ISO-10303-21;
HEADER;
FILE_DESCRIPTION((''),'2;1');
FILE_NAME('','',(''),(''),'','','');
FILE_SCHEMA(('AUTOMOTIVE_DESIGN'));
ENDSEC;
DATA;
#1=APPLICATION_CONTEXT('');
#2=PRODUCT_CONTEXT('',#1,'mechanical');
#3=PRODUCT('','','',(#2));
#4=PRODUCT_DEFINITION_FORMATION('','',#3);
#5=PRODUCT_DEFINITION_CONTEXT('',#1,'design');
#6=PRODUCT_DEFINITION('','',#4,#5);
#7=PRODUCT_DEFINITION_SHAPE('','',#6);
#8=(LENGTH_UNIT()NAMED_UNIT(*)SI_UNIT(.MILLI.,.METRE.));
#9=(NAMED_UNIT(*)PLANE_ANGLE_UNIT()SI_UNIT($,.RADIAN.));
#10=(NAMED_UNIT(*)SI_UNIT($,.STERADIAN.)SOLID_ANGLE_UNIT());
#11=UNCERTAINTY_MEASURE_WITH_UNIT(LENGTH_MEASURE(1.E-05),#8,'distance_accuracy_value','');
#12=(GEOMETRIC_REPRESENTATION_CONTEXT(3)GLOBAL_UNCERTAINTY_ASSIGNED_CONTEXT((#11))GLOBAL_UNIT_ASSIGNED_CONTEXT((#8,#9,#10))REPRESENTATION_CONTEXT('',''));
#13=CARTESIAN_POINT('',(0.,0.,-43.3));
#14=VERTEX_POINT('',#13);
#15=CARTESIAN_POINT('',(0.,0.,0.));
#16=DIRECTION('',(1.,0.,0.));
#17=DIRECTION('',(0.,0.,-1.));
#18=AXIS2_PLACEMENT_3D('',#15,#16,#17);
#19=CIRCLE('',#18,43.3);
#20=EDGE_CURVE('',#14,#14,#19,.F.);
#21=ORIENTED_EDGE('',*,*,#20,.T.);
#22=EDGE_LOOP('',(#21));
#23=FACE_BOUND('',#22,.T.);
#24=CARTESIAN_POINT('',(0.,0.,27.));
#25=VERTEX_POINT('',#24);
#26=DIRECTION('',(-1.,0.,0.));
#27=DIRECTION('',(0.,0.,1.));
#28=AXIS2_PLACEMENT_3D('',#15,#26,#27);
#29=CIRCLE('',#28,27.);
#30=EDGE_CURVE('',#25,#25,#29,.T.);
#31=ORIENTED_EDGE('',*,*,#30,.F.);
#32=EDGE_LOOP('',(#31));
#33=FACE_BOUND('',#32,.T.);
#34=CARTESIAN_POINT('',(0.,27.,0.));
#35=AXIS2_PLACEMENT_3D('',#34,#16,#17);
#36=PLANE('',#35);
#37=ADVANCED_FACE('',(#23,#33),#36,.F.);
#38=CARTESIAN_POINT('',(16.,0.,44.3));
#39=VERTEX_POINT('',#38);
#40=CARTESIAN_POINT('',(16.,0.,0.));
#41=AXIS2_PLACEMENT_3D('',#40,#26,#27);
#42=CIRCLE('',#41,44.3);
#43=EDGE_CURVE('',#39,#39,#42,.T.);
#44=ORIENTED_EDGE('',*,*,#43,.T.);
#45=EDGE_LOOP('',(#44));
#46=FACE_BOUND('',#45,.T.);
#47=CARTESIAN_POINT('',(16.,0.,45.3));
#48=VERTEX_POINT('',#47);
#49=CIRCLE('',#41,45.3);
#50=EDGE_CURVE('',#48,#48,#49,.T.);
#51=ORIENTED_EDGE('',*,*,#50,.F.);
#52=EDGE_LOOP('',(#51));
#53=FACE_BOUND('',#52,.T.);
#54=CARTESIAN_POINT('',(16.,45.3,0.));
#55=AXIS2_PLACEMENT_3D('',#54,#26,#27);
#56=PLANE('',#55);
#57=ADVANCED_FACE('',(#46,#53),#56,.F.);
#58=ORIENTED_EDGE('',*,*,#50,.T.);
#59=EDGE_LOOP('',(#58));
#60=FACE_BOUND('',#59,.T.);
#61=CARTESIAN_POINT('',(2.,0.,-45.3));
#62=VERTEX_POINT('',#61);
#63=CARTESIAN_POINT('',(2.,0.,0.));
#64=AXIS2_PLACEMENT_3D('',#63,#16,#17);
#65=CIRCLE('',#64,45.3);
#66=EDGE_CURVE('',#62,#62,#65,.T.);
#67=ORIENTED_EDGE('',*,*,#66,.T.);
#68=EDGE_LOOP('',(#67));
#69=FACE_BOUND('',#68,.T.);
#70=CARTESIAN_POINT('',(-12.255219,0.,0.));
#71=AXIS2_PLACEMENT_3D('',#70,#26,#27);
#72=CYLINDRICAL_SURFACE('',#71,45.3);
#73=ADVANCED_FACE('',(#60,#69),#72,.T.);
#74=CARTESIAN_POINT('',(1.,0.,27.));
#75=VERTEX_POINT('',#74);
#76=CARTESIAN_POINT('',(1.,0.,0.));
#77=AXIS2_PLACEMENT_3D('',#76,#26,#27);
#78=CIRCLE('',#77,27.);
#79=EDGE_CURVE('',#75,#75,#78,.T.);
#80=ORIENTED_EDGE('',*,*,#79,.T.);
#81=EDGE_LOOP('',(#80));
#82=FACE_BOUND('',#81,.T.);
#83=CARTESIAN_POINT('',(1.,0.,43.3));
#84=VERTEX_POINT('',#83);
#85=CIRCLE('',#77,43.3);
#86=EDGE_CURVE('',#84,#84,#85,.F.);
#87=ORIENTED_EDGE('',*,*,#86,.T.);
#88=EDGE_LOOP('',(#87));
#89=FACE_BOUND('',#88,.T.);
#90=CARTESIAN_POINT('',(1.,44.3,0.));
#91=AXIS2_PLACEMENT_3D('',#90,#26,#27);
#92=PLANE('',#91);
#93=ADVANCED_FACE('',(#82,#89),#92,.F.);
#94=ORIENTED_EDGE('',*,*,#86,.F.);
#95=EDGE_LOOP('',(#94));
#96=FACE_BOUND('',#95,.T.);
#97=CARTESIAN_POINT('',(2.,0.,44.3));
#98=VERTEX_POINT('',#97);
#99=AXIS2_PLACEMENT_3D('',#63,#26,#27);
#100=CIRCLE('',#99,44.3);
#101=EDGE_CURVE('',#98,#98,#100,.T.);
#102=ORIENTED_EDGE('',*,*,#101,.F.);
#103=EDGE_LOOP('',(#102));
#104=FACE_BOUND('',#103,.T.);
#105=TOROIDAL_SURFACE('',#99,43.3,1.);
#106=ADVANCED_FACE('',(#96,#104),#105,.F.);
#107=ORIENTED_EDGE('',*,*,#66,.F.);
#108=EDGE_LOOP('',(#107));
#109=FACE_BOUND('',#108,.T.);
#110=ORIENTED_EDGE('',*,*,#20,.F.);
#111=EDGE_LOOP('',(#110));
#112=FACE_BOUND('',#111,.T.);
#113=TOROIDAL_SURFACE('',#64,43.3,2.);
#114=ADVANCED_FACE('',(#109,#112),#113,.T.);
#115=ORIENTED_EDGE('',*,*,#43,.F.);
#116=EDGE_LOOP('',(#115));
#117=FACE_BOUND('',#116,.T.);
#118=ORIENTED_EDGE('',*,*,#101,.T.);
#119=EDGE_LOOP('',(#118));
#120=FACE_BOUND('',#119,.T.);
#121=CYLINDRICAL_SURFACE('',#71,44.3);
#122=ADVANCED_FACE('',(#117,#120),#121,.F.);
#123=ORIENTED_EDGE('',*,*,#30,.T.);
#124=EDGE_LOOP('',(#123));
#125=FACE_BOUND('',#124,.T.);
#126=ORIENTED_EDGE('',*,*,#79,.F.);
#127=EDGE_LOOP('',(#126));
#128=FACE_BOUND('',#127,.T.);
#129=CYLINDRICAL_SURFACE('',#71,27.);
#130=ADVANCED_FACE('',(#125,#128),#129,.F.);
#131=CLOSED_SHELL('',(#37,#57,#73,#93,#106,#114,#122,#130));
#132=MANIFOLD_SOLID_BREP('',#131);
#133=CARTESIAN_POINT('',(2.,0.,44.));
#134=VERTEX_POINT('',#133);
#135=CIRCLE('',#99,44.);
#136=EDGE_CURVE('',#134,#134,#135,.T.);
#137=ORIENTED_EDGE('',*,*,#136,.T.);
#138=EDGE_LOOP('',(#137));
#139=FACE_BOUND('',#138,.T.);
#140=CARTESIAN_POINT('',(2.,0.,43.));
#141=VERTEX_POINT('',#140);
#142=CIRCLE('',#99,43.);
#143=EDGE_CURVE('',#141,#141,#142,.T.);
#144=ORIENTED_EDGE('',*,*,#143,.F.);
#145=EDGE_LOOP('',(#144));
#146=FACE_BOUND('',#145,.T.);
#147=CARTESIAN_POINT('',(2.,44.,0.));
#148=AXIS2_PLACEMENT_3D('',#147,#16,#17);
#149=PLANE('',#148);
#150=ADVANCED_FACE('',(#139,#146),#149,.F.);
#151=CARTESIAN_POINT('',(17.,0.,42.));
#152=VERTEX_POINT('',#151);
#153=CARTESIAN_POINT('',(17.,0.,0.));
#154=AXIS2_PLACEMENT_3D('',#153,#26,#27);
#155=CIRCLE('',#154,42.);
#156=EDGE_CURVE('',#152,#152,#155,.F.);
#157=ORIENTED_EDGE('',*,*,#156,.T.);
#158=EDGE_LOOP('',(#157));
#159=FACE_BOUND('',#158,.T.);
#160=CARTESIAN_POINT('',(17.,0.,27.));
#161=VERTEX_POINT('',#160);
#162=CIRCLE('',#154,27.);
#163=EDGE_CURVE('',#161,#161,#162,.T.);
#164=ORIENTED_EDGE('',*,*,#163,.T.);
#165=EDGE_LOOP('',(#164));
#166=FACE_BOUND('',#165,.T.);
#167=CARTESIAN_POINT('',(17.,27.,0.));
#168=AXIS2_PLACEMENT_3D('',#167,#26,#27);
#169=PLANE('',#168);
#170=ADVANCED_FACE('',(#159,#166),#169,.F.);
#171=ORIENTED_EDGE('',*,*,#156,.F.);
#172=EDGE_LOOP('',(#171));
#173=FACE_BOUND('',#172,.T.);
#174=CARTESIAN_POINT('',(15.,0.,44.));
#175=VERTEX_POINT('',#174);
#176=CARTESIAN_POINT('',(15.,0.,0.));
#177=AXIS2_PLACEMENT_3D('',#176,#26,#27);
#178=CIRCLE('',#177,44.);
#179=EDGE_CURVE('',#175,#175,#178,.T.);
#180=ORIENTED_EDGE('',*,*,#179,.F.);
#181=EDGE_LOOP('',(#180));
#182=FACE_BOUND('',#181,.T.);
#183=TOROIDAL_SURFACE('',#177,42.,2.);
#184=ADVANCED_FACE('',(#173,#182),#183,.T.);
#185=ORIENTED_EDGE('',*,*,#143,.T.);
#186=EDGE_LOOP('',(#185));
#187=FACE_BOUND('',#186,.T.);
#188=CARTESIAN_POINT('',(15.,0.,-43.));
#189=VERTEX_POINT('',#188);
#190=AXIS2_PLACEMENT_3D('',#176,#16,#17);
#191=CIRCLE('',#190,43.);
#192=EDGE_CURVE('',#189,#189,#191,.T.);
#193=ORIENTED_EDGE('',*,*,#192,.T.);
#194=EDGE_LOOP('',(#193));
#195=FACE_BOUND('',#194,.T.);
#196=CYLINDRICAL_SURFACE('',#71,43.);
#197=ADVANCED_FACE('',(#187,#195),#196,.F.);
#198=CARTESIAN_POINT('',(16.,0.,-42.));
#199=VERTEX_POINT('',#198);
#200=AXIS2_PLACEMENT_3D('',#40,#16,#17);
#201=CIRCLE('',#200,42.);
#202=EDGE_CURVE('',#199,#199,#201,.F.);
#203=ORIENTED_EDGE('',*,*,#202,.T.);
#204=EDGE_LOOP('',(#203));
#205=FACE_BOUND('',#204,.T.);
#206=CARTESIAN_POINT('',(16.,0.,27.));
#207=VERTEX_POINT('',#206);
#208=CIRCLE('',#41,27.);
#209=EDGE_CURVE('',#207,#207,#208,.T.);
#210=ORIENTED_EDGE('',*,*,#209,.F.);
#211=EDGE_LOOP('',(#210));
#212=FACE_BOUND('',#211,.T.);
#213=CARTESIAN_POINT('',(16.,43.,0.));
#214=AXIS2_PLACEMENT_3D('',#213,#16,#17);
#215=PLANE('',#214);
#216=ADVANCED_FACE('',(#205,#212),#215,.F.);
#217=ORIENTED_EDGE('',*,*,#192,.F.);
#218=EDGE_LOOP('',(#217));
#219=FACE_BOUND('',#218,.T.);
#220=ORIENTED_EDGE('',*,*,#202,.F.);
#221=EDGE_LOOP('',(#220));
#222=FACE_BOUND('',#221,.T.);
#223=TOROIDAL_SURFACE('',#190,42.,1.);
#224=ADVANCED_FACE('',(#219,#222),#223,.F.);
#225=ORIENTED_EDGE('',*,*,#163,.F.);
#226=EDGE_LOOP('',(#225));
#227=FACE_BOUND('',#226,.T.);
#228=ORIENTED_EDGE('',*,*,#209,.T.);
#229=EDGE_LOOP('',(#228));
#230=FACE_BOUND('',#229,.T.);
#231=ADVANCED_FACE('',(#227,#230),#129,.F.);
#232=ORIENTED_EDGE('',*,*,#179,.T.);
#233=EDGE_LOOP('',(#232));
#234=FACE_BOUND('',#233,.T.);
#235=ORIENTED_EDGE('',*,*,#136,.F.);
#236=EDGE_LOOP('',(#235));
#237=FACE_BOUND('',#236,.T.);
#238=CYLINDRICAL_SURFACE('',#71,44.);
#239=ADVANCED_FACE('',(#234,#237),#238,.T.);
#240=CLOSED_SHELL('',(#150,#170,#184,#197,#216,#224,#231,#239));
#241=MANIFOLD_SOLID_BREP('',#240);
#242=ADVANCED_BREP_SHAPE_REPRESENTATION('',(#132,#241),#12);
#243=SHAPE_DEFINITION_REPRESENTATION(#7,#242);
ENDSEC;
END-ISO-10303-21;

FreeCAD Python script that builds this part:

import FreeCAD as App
import Part
import Sketcher

V = App.Vector


def edges_at(feature, points):
    """Names of the edges that pass closest to the given points."""
    edges = feature.Shape.Edges
    near = lambda p: min(range(len(edges)), key=lambda i: edges[i].distToShape(Part.Vertex(*p))[0])
    return sorted({f"Edge{near(p) + 1}" for p in points})


def add_polygon(sketch, points):
    """Adds a closed chain of lines whose ends are joined by coincident constraints."""
    first, n = sketch.GeometryCount, len(points)
    for a, b in zip(points, points[1:] + points[:1]):
        sketch.addGeometry(Part.LineSegment(App.Vector(*a, 0), App.Vector(*b, 0)), False)
    for i in range(n):
        sketch.addConstraint(Sketcher.Constraint("Coincident", first + i, 2, first + (i + 1) % n, 1))

doc = App.newDocument("Part")
body = doc.addObject("PartDesign::Body", "Body")
body.AllowCompound = True

# Sketch on XY plane
sketch1 = doc.addObject("Sketcher::SketchObject", "Sketch")
body.addObject(sketch1)
sketch1.AttachmentSupport = (doc.XY_Plane, [""])
sketch1.MapMode = "FlatFace"
add_polygon(sketch1, [(0, 45.3), (0, 27), (1, 27), (1, 44.3), (16, 44.3), (16, 45.3)])  # lines 0-5
add_polygon(sketch1, [(17, 27), (17, 44), (2, 44), (2, 43), (16, 43), (16, 27)])  # lines 6-11
sketch1.addConstraint(Sketcher.Constraint("Vertical", 0))
sketch1.addConstraint(Sketcher.Constraint("Horizontal", 1))
sketch1.addConstraint(Sketcher.Constraint("Vertical", 2))
sketch1.addConstraint(Sketcher.Constraint("Horizontal", 3))
sketch1.addConstraint(Sketcher.Constraint("Vertical", 4))
sketch1.addConstraint(Sketcher.Constraint("Horizontal", 5))
sketch1.addConstraint(Sketcher.Constraint("Vertical", 6))
sketch1.addConstraint(Sketcher.Constraint("Horizontal", 7))
sketch1.addConstraint(Sketcher.Constraint("Vertical", 8))
sketch1.addConstraint(Sketcher.Constraint("Horizontal", 9))
sketch1.addConstraint(Sketcher.Constraint("Vertical", 10))
sketch1.addConstraint(Sketcher.Constraint("Horizontal", 11))
sketch1.addConstraint(Sketcher.Constraint("PointOnObject", 0, 2, -2))
sketch1.addConstraint(Sketcher.Constraint("Horizontal", 1, 2, 10, 2))
sketch1.addConstraint(Sketcher.Constraint("Vertical", 4, 2, 9, 2))
sketch1.addConstraint(Sketcher.Constraint("Equal", 3, 7))
sketch1.addConstraint(Sketcher.Constraint("Equal", 1, 11))
sketch1.addConstraint(Sketcher.Constraint("Equal", 11, 4))
sketch1.addConstraint(Sketcher.Constraint("Equal", 4, 8))
sketch1.addConstraint(Sketcher.Constraint("Equal", 5, 10))
sketch1.addConstraint(Sketcher.Constraint("DistanceX", 1, 1, 1, 2, 1.0))
sketch1.addConstraint(Sketcher.Constraint("DistanceX", 3, 1, 3, 2, 15.0))
sketch1.addConstraint(Sketcher.Constraint("DistanceY", 0, 2, 0, 1, 18.3))
sketch1.addConstraint(Sketcher.Constraint("DistanceY", -1, 1, 0, 2, 27.0))
revolution = doc.addObject("PartDesign::Revolution", "Revolution")
body.addObject(revolution)
revolution.Profile = sketch1
revolution.ReferenceAxis = (sketch1, ["H_Axis"])
revolution.Angle = 360
doc.recompute()

fillet = doc.addObject("PartDesign::Fillet", "Fillet")
body.addObject(fillet)
fillet.Base = (revolution, edges_at(revolution, [(16, 0, -43)]))
fillet.Radius = 1
doc.recompute()

fillet2 = doc.addObject("PartDesign::Fillet", "Fillet001")
body.addObject(fillet2)
fillet2.Base = (fillet, edges_at(fillet, [(1, 0, -44.3)]))
fillet2.Radius = 1
doc.recompute()

fillet3 = doc.addObject("PartDesign::Fillet", "Fillet002")
body.addObject(fillet3)
fillet3.Base = (fillet2, edges_at(fillet2, [(0, 0, -45.3)]))
fillet3.Radius = 2
doc.recompute()

fillet4 = doc.addObject("PartDesign::Fillet", "Fillet003")
body.addObject(fillet4)
fillet4.Base = (fillet3, edges_at(fillet3, [(17, 0, -44)]))
fillet4.Radius = 2

doc.recompute()
